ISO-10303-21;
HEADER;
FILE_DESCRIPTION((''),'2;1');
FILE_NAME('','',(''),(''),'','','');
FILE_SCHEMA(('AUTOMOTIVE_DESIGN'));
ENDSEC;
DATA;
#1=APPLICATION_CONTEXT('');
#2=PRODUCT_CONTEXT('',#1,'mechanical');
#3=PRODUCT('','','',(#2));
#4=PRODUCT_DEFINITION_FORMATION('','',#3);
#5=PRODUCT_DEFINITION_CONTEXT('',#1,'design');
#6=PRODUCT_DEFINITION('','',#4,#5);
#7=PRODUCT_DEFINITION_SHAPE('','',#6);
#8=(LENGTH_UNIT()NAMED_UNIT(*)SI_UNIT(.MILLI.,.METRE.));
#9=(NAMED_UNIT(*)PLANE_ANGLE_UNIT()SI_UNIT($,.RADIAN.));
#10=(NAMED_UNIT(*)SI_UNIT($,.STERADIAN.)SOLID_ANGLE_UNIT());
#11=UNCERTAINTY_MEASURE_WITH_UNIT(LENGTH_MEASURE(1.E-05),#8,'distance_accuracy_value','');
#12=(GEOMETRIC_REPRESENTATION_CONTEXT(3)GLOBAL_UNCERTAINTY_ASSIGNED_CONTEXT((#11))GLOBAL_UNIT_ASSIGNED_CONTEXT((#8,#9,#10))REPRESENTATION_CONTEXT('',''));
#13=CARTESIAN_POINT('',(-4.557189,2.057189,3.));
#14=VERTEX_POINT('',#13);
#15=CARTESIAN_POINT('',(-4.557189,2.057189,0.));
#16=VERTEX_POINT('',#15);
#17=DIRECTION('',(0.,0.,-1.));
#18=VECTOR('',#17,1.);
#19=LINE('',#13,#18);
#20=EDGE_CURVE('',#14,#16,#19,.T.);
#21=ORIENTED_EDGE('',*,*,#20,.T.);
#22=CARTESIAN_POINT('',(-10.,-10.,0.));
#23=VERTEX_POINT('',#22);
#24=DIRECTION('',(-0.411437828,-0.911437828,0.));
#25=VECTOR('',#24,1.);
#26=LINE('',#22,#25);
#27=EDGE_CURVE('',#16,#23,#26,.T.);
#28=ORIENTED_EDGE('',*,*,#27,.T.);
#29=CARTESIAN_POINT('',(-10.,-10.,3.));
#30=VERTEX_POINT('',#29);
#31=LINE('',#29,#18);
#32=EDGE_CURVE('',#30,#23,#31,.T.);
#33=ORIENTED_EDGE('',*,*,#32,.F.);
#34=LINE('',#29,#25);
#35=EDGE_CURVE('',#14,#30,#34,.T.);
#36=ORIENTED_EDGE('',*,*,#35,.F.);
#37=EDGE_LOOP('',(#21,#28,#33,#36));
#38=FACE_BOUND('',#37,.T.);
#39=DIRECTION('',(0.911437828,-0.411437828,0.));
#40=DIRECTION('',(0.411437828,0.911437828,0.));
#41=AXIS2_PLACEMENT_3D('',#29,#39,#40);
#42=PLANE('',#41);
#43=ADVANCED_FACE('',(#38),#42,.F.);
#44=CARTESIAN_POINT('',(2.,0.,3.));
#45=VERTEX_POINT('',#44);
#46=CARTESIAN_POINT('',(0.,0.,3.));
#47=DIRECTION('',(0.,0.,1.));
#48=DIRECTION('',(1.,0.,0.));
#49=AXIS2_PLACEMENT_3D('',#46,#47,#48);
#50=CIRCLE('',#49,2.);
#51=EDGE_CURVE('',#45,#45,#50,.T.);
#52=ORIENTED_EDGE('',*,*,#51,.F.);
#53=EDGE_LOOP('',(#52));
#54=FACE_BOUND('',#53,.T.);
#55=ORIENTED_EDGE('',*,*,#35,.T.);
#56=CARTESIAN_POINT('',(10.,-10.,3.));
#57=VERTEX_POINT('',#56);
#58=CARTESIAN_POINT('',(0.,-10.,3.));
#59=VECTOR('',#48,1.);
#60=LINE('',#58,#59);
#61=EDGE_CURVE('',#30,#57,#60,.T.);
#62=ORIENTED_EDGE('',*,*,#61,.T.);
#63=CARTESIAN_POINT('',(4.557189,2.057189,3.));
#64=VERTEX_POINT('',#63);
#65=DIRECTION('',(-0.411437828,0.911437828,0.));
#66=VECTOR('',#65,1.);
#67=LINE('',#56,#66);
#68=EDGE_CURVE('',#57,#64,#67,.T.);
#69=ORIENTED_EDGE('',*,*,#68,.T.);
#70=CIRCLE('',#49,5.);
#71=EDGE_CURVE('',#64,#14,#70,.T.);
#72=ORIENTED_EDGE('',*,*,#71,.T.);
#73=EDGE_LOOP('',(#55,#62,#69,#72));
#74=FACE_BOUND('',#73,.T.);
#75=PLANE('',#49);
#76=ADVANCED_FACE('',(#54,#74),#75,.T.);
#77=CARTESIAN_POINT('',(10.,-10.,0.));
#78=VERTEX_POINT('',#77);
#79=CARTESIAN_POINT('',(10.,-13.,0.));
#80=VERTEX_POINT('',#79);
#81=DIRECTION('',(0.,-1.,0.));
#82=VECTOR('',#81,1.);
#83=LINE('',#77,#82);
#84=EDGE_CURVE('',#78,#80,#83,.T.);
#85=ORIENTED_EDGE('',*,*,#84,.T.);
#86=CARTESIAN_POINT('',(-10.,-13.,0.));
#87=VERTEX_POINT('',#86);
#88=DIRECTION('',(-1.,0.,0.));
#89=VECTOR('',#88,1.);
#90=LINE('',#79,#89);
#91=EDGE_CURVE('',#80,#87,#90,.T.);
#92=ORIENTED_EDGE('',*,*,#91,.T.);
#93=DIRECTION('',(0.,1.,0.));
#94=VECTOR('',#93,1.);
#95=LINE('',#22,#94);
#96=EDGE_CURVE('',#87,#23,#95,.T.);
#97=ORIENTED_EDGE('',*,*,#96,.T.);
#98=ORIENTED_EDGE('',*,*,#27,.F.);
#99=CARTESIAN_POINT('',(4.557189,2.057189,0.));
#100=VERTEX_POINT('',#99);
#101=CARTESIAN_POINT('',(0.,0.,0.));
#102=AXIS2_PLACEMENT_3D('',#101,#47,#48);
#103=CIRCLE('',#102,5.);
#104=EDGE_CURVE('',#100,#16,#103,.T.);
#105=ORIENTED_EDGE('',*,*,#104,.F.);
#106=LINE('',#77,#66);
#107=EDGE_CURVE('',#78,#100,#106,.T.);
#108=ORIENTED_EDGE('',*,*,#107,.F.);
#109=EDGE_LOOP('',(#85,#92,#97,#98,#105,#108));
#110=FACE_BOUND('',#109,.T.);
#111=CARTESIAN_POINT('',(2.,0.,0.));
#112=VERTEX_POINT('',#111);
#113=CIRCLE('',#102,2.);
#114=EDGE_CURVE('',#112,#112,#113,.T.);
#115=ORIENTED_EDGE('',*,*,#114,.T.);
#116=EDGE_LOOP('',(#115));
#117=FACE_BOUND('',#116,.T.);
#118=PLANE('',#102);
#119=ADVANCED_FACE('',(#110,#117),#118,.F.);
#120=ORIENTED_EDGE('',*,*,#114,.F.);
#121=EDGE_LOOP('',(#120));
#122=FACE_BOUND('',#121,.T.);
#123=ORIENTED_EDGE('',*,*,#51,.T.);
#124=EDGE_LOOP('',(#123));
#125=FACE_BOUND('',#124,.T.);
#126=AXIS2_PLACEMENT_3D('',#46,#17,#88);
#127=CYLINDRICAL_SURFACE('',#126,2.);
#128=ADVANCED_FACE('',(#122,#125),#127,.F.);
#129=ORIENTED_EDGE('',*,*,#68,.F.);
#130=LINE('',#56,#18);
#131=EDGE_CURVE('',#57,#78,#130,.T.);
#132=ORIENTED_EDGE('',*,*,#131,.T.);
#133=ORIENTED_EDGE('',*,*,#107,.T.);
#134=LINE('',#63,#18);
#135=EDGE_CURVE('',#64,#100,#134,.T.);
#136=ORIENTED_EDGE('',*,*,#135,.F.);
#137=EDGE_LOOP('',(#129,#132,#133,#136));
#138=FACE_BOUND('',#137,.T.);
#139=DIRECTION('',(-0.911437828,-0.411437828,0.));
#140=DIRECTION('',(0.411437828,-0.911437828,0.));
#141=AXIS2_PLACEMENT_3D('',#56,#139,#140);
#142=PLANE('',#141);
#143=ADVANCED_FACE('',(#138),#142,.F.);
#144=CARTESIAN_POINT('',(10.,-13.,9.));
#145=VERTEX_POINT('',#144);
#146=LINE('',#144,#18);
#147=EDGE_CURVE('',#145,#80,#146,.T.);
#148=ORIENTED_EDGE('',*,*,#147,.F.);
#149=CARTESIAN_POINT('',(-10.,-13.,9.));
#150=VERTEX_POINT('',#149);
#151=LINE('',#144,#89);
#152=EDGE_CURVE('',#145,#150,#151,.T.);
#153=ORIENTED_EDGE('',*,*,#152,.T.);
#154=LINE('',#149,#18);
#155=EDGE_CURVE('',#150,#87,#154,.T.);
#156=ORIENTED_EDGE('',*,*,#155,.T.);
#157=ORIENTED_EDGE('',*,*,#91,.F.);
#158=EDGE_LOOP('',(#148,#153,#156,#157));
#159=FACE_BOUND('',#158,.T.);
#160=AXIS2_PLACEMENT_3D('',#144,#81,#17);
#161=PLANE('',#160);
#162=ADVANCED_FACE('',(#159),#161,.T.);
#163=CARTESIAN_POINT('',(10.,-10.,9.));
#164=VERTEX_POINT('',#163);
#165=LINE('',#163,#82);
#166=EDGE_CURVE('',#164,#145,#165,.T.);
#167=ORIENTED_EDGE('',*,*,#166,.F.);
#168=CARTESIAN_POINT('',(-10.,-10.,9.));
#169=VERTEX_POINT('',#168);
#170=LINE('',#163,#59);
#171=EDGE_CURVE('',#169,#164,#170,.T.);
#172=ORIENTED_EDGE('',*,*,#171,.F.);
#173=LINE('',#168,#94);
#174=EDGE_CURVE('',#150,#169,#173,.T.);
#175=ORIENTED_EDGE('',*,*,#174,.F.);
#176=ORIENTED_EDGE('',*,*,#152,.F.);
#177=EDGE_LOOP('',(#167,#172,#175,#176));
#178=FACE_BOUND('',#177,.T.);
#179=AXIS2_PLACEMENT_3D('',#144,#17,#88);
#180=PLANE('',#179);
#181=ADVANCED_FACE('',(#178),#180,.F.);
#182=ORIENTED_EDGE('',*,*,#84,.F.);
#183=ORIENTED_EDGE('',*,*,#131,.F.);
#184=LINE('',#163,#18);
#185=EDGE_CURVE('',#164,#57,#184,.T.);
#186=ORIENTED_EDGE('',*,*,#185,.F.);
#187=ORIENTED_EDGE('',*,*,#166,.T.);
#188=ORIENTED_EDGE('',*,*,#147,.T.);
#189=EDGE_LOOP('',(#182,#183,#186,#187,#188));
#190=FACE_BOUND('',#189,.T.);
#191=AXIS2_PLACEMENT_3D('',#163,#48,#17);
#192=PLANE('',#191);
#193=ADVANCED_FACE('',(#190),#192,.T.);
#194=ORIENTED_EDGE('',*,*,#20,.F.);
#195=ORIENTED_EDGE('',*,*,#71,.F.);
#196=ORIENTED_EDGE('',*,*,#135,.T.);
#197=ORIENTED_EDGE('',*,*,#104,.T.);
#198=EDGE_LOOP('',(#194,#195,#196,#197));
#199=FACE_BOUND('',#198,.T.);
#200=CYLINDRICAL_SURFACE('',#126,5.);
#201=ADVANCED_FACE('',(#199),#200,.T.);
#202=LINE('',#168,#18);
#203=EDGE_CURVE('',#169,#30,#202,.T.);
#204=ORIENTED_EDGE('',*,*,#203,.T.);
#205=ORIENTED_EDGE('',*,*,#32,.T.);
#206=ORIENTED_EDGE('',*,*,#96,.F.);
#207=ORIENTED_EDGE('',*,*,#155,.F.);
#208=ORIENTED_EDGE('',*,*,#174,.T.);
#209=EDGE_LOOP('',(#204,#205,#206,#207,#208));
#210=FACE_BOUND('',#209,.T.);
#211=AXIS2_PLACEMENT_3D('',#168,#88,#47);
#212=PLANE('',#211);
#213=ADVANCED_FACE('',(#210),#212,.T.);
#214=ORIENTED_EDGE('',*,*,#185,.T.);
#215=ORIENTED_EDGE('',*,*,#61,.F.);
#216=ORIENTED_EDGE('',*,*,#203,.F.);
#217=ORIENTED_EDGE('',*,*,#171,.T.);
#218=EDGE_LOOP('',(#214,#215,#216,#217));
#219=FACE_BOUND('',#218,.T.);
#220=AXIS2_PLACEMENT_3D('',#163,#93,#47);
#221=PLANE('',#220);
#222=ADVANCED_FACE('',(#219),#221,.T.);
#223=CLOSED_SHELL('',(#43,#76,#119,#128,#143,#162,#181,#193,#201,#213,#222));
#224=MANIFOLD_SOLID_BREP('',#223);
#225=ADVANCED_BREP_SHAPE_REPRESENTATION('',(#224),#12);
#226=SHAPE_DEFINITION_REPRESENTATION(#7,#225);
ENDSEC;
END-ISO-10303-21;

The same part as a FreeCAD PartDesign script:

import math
import FreeCAD as App
import Part
import Sketcher
Q = App.Units.Quantity


def add_polygon(sketch, points):
    """Adds a closed chain of lines whose ends are joined by coincident constraints."""
    first, n = sketch.GeometryCount, len(points)
    for a, b in zip(points, points[1:] + points[:1]):
        sketch.addGeometry(Part.LineSegment(App.Vector(*a, 0), App.Vector(*b, 0)), False)
    for i in range(n):
        sketch.addConstraint(Sketcher.Constraint("Coincident", first + i, 2, first + (i + 1) % n, 1))

doc = App.newDocument("Part")
body = doc.addObject("PartDesign::Body", "Body")

# Sketch on XY plane
sketch1 = body.newObject("Sketcher::SketchObject", "Sketch")
sketch1.AttachmentSupport = (doc.getObject("XY_Plane"), [""])
sketch1.MapMode = "FlatFace"
sketch1.addGeometry(Part.LineSegment(App.Vector(-4.6, 2.1, 0), App.Vector(-10, -10, 0)), False)
sketch1.addGeometry(Part.LineSegment(App.Vector(-10, -10, 0), App.Vector(10, -10, 0)), False)
sketch1.addGeometry(Part.LineSegment(App.Vector(10, -10, 0), App.Vector(4.6, 2.1, 0)), False)
sketch1.addGeometry(Part.ArcOfCircle(Part.Circle(App.Vector(0, 0, 0), App.Vector(0, 0, 1), 5), math.radians(24), math.radians(156)), False)
sketch1.addGeometry(Part.Circle(App.Vector(0, 0, 0), App.Vector(0, 0, 1), 2), False)
sketch1.addConstraint(Sketcher.Constraint("Coincident", 0, 2, 1, 1))
sketch1.addConstraint(Sketcher.Constraint("Coincident", 1, 2, 2, 1))
sketch1.addConstraint(Sketcher.Constraint("Tangent", 2, 2, 3, 1))
sketch1.addConstraint(Sketcher.Constraint("Tangent", 3, 2, 0, 1))
sketch1.addConstraint(Sketcher.Constraint("Horizontal", 1))
sketch1.addConstraint(Sketcher.Constraint("Coincident", 3, 3, -1, 1))
sketch1.addConstraint(Sketcher.Constraint("Coincident", 4, 3, -1, 1))
sketch1.addConstraint(Sketcher.Constraint("Horizontal", 2, 2, 3, 2))
sketch1.addConstraint(Sketcher.Constraint("Diameter", 4, Q("4 mm")))
sketch1.addConstraint(Sketcher.Constraint("Radius", 3, Q("5 mm")))
sketch1.addConstraint(Sketcher.Constraint("DistanceX", 1, 1, 1, 2, Q("20 mm")))
sketch1.addConstraint(Sketcher.Constraint("DistanceY", 0, 2, -1, 1, Q("10 mm")))
pad1 = body.newObject("PartDesign::Pad", "Pad")
pad1.Profile = sketch1
pad1.Length = 3

# Sketch on XY plane
sketch2 = body.newObject("Sketcher::SketchObject", "Sketch001")
sketch2.AttachmentSupport = (doc.getObject("XY_Plane"), [""])
sketch2.MapMode = "FlatFace"
add_polygon(sketch2, [(10, -10), (10, -13), (-10, -13), (-10, -10)])  # lines 0-3
sketch2.addConstraint(Sketcher.Constraint("Vertical", 0))
sketch2.addConstraint(Sketcher.Constraint("Horizontal", 1))
sketch2.addConstraint(Sketcher.Constraint("Vertical", 2))
sketch2.addConstraint(Sketcher.Constraint("Horizontal", 3))
sketch2.addConstraint(Sketcher.Constraint("DistanceX", 1, 2, 1, 1, Q("20 mm")))
sketch2.addConstraint(Sketcher.Constraint("DistanceY", 0, 2, 0, 1, Q("3 mm")))
sketch2.addConstraint(Sketcher.Constraint("DistanceX", -1, 1, 0, 2, Q("10 mm")))
sketch2.addConstraint(Sketcher.Constraint("DistanceY", 0, 2, -1, 1, Q("13 mm")))
pad2 = body.newObject("PartDesign::Pad", "Pad001")
pad2.Profile = sketch2
pad2.Length = 9

doc.recompute()
